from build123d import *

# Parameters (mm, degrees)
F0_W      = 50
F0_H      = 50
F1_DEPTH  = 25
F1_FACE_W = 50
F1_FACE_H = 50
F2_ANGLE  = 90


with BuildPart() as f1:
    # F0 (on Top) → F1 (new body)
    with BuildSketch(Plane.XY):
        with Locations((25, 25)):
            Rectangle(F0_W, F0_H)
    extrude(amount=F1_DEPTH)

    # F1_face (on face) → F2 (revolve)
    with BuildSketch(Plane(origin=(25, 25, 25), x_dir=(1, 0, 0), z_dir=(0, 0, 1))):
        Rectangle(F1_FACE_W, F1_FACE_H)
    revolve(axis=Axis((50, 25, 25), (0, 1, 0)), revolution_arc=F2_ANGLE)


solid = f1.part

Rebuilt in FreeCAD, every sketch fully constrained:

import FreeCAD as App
import Part
import Sketcher
from FreeCAD import Vector


def add_polygon(sketch, points):
    """Adds a closed chain of lines whose ends are joined by coincident constraints."""
    first, n = sketch.GeometryCount, len(points)
    for a, b in zip(points, points[1:] + points[:1]):
        sketch.addGeometry(Part.LineSegment(App.Vector(*a, 0), App.Vector(*b, 0)), False)
    for i in range(n):
        sketch.addConstraint(Sketcher.Constraint("Coincident", first + i, 2, first + (i + 1) % n, 1))

doc = App.newDocument("Part")
body = doc.addObject("PartDesign::Body", "Body")

# Sketch on XY plane
sketch1 = body.newObject("Sketcher::SketchObject", "Sketch")
sketch1.AttachmentSupport = (doc.getObject("XY_Plane"), [""])
sketch1.MapMode = "FlatFace"
add_polygon(sketch1, [(0, 50), (0, 0), (50, 0), (50, 50)])  # lines 0-3
sketch1.addConstraint(Sketcher.Constraint("Vertical", 0))
sketch1.addConstraint(Sketcher.Constraint("Horizontal", 1))
sketch1.addConstraint(Sketcher.Constraint("Vertical", 2))
sketch1.addConstraint(Sketcher.Constraint("Horizontal", 3))
sketch1.addConstraint(Sketcher.Constraint("Coincident", 0, 2, -1, 1))
sketch1.addConstraint(Sketcher.Constraint("Equal", 3, 0))
sketch1.addConstraint(Sketcher.Constraint("DistanceX", 1, 1, 1, 2, 50.0))
pad1 = body.newObject("PartDesign::Pad", "Pad")
pad1.Profile = sketch1
pad1.Length = 25

# Sketch on XY plane
sketch2 = body.newObject("Sketcher::SketchObject", "Sketch001")
sketch2.AttachmentSupport = (doc.getObject("XY_Plane"), [""])
sketch2.MapMode = "FlatFace"
sketch2.AttachmentOffset = App.Placement(Vector(0, 0, 25), App.Rotation())
add_polygon(sketch2, [(0, 50), (0, 0), (50, 0), (50, 50)])  # lines 0-3
sketch2.addGeometry(Part.LineSegment(Vector(50, 0, 0), Vector(50, 50, 0)), True)  # axis
sketch2.addConstraint(Sketcher.Constraint("Vertical", 0))
sketch2.addConstraint(Sketcher.Constraint("Horizontal", 1))
sketch2.addConstraint(Sketcher.Constraint("Vertical", 2))
sketch2.addConstraint(Sketcher.Constraint("Horizontal", 3))
sketch2.addConstraint(Sketcher.Constraint("Vertical", 4))
sketch2.addConstraint(Sketcher.Constraint("Coincident", 0, 2, -1, 1))
sketch2.addConstraint(Sketcher.Constraint("Coincident", 4, 1, 1, 2))
sketch2.addConstraint(Sketcher.Constraint("Horizontal", 3, 2, 4, 2))
sketch2.addConstraint(Sketcher.Constraint("Equal", 3, 0))
sketch2.addConstraint(Sketcher.Constraint("DistanceX", 1, 1, 1, 2, 50.0))
revolution = body.newObject("PartDesign::Revolution", "Revolution")
revolution.Profile = sketch2
revolution.ReferenceAxis = (sketch2, ["Axis0"])
revolution.Angle = 90

doc.recompute()
